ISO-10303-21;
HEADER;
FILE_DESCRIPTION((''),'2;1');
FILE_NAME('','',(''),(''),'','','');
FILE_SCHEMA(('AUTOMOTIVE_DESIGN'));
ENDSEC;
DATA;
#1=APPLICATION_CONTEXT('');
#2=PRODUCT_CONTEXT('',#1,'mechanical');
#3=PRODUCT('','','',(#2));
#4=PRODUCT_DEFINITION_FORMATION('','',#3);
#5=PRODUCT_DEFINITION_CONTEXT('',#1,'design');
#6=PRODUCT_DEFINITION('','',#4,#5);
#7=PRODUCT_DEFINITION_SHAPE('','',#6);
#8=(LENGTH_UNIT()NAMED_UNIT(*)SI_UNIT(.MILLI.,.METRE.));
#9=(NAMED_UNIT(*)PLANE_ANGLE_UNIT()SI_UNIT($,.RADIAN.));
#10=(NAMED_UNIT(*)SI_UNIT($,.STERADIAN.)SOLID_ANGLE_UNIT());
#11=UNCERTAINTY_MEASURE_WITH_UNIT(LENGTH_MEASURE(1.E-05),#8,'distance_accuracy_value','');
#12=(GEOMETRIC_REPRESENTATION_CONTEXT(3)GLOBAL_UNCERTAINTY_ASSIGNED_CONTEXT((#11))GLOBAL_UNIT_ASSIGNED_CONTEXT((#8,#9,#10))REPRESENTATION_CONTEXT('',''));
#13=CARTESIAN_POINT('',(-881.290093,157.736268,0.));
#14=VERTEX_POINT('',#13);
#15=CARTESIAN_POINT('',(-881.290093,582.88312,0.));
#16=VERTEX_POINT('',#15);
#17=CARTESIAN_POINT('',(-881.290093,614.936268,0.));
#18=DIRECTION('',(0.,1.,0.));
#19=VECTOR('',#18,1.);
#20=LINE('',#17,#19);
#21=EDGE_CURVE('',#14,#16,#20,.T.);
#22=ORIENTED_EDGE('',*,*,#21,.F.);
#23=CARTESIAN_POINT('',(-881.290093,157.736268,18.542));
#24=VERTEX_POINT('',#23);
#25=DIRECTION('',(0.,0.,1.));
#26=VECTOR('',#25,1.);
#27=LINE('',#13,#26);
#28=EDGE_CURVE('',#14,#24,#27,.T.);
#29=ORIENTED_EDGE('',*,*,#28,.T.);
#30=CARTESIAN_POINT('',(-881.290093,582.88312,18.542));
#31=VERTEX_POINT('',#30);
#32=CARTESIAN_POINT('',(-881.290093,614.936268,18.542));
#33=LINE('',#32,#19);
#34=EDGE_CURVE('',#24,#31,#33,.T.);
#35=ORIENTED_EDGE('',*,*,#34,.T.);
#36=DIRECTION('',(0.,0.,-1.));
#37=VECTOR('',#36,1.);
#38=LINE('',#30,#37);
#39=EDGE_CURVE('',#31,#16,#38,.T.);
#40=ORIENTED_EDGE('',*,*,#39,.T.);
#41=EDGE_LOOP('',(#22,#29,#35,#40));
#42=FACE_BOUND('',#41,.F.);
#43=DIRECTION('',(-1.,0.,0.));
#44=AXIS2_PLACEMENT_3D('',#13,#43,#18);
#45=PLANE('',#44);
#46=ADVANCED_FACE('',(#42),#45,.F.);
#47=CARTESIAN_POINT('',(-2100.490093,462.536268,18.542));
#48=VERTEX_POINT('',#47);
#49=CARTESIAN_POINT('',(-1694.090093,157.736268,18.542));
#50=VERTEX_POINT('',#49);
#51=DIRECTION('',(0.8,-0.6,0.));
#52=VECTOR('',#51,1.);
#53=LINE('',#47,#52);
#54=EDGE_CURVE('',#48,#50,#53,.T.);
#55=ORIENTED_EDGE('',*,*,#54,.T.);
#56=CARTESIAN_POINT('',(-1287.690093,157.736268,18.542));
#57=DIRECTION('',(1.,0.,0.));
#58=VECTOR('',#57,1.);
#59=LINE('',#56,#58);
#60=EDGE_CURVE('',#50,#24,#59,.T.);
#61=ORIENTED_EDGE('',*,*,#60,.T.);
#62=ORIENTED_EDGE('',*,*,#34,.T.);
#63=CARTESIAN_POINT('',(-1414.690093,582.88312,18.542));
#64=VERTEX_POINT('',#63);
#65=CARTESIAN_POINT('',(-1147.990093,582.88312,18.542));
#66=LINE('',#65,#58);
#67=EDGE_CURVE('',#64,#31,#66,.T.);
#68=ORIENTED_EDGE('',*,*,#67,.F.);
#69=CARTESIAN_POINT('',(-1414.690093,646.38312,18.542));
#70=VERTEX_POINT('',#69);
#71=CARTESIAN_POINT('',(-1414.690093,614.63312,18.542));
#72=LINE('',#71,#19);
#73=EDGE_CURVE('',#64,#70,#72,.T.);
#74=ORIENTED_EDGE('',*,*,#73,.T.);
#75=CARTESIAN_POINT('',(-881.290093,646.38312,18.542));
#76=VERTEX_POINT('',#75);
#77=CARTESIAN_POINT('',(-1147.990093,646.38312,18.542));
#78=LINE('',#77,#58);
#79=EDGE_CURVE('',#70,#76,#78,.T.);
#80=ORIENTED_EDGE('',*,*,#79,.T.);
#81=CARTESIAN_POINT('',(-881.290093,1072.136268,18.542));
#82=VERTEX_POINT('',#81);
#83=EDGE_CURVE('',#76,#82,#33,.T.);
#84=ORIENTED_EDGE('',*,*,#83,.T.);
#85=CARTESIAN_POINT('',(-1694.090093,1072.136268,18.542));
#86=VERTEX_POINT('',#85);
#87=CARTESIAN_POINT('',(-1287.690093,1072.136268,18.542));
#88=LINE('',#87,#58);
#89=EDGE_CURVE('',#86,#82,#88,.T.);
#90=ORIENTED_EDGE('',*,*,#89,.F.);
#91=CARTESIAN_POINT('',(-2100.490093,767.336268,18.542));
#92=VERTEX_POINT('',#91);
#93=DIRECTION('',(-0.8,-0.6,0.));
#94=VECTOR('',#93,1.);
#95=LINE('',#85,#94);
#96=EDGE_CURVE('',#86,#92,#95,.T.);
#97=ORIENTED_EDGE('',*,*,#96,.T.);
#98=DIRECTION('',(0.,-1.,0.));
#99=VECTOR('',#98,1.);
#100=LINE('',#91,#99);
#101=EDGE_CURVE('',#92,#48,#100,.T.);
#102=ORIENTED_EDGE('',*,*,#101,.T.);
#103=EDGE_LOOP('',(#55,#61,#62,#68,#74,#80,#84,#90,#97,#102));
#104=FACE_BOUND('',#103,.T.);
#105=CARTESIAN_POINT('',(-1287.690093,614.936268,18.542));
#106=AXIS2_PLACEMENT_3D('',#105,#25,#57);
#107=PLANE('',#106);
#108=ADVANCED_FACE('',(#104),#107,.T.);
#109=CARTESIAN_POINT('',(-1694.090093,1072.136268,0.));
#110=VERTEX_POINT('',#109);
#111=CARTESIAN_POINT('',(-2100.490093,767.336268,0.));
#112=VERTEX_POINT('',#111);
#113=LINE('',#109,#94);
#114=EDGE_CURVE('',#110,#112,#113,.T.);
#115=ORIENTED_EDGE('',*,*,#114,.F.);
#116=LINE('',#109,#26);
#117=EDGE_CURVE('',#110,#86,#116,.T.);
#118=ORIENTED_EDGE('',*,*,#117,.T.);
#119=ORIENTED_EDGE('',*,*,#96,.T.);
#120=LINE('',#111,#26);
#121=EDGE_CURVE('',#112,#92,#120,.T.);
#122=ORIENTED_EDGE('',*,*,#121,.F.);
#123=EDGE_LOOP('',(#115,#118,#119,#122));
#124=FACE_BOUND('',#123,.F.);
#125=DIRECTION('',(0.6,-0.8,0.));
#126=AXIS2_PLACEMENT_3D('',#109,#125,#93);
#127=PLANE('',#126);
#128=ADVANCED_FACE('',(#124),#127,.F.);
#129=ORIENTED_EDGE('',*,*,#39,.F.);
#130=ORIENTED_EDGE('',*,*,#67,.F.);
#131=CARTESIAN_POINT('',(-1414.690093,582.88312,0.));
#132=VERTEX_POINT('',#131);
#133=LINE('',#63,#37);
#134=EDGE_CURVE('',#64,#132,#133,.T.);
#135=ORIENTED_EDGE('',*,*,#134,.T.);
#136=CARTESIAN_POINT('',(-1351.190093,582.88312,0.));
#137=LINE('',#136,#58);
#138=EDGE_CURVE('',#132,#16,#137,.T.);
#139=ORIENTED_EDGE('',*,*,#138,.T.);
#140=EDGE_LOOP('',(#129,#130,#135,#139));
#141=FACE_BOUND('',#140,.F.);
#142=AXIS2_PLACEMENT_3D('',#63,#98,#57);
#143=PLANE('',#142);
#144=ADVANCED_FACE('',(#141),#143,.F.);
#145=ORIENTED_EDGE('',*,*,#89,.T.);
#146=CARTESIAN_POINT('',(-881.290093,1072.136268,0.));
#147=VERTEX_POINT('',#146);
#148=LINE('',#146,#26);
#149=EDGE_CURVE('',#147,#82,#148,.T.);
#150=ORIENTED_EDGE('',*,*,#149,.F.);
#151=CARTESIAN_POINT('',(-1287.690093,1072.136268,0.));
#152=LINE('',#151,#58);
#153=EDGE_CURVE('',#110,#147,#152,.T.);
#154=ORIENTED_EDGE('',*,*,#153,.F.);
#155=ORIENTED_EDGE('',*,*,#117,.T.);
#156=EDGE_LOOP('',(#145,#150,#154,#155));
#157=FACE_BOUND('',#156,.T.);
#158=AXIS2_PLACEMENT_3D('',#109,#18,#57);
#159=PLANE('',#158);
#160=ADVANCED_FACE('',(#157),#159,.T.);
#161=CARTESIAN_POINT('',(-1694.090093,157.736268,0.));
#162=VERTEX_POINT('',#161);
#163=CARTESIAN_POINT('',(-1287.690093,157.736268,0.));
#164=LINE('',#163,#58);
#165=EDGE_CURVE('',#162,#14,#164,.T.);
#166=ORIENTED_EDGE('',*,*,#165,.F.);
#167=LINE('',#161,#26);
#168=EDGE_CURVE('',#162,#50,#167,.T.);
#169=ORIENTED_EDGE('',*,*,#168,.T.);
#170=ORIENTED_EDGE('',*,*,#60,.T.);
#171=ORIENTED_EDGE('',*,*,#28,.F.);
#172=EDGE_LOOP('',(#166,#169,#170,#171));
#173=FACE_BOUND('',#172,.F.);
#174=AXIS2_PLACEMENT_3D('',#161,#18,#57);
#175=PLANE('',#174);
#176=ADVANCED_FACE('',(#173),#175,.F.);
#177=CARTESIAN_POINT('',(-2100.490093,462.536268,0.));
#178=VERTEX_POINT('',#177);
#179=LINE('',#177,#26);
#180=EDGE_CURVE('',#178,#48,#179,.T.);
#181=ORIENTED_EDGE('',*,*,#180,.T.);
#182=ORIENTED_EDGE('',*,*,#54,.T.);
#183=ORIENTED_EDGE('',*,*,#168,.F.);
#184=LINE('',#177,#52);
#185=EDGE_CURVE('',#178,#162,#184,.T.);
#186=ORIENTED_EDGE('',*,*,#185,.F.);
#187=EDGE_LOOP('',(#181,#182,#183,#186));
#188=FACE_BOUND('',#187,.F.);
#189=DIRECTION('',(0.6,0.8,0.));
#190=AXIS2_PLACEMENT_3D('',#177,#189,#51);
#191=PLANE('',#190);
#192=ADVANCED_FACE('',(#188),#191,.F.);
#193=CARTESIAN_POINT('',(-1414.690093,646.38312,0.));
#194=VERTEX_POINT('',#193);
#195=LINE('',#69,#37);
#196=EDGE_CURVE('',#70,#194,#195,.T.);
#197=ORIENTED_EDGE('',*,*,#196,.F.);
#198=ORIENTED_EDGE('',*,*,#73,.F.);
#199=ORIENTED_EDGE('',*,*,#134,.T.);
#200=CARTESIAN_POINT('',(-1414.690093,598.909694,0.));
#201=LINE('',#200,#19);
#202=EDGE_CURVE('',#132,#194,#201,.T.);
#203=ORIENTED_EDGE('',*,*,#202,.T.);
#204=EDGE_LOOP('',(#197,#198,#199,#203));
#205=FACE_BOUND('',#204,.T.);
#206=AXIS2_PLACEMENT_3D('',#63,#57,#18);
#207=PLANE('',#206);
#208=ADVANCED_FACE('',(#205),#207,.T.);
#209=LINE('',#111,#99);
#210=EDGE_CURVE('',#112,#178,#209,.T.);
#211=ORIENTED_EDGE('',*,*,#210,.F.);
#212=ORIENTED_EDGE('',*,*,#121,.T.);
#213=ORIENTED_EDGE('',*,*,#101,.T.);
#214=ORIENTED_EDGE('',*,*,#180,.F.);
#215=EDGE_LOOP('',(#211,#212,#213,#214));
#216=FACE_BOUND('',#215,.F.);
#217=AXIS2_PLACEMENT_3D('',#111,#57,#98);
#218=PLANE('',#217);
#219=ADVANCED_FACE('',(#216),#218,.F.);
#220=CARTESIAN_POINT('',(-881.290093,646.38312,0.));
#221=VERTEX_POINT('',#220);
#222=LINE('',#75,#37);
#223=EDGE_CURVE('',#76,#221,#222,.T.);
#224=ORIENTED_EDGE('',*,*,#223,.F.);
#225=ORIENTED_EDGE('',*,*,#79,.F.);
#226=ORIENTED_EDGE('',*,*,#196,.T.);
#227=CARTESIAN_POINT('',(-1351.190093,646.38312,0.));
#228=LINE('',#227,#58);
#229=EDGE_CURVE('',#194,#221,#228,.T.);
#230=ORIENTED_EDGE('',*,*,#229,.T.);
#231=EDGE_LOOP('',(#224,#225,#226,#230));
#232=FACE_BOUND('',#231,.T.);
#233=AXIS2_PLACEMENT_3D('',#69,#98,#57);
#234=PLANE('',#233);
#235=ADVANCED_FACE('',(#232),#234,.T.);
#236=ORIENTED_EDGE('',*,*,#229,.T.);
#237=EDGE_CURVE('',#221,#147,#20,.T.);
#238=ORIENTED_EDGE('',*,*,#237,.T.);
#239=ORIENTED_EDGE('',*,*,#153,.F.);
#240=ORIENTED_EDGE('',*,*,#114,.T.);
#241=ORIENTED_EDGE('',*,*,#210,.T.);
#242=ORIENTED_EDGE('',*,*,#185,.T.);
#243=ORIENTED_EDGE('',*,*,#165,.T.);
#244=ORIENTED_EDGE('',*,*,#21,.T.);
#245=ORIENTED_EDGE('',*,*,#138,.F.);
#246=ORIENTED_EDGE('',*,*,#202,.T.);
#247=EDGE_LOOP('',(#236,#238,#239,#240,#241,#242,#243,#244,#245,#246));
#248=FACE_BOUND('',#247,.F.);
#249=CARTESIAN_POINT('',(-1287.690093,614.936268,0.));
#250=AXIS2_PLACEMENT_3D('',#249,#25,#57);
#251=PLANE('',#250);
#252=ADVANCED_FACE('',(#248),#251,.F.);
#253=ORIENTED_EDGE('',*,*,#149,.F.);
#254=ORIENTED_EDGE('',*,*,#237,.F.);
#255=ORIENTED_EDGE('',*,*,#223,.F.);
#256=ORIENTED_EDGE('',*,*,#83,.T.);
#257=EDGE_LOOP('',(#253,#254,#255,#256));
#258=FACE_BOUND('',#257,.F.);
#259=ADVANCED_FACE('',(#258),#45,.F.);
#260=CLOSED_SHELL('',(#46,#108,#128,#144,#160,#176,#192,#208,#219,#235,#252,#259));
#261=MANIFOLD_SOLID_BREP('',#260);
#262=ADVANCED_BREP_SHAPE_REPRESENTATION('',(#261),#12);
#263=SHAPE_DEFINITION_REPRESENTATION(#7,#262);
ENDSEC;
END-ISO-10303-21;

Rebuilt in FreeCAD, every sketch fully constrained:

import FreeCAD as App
import Part
import Sketcher

V = App.Vector
Q = App.Units.Quantity


def add_polygon(sketch, points):
    """Adds a closed chain of lines whose ends are joined by coincident constraints."""
    first, n = sketch.GeometryCount, len(points)
    for a, b in zip(points, points[1:] + points[:1]):
        sketch.addGeometry(Part.LineSegment(App.Vector(*a, 0), App.Vector(*b, 0)), False)
    for i in range(n):
        sketch.addConstraint(Sketcher.Constraint("Coincident", first + i, 2, first + (i + 1) % n, 1))

doc = App.newDocument("Part")
params = doc.addObject("Spreadsheet::Sheet", "Params")
for row, (alias, value) in enumerate([
    ("sketch1_width", "32 in"),
    ("sketch1_height", "36 in"),
    ("sketch1_height2", "12 in"),
    ("sketch1_length", "20 in"),
    ("pad1_length", "0.73 in"),
    ("sketch2_width", "21 in"),
    ("sketch2_height", "2.5 in"),
], start=1):
    params.set(f"A{row}", alias)
    params.set(f"B{row}", "=" + value)
    params.setAlias(f"B{row}", alias)

body = doc.addObject("PartDesign::Body", "Body")

# Sketch on XY plane
sketch1 = body.newObject("Sketcher::SketchObject", "Sketch")
sketch1.AttachmentSupport = (doc.getObject("XY_Plane"), [""])
sketch1.MapMode = "FlatFace"
add_polygon(sketch1, [(-1694, 158), (-881, 158), (-881, 1072), (-1694, 1072), (-2100, 767), (-2100, 463)])  # lines 0-5
sketch1.addConstraint(Sketcher.Constraint("Horizontal", 0))
sketch1.addConstraint(Sketcher.Constraint("Vertical", 1))
sketch1.addConstraint(Sketcher.Constraint("Horizontal", 2))
sketch1.addConstraint(Sketcher.Constraint("Vertical", 4))
sketch1.addConstraint(Sketcher.Constraint("Vertical", 2, 2, 5, 2))
sketch1.addConstraint(Sketcher.Constraint("Equal", 3, 5))
sketch1.addConstraint(Sketcher.Constraint("DistanceX", 0, 1, 0, 2, Q("32 in")))
sketch1.addConstraint(Sketcher.Constraint("DistanceY", 1, 1, 1, 2, Q("36 in")))
sketch1.addConstraint(Sketcher.Constraint("DistanceY", 4, 2, 4, 1, Q("12 in")))
sketch1.addConstraint(Sketcher.Constraint("Distance", 3, Q("20 in")))
sketch1.addConstraint(Sketcher.Constraint("DistanceY", -1, 1, 0, 2, Q("157.736268 mm")))
sketch1.addConstraint(Sketcher.Constraint("DistanceX", 0, 2, -1, 1, Q("881.290093 mm")))
sketch1.setExpression("Constraints[12]", "Params.sketch1_width")
sketch1.setExpression("Constraints[13]", "Params.sketch1_height")
sketch1.setExpression("Constraints[14]", "Params.sketch1_height2")
sketch1.setExpression("Constraints[15]", "Params.sketch1_length")
pad1 = body.newObject("PartDesign::Pad", "Pad")
pad1.Profile = sketch1
pad1.setExpression("Length", "Params.pad1_length")

# Sketch on XY plane
sketch2 = body.newObject("Sketcher::SketchObject", "Sketch001")
sketch2.AttachmentSupport = (doc.getObject("XY_Plane"), [""])
sketch2.MapMode = "FlatFace"
sketch2.AttachmentOffset = App.Placement(V(0, 0, 0.73 * 25.4), App.Rotation())
add_polygon(sketch2, [(-1415, 646), (-1415, 583), (-881, 583), (-881, 646)])  # lines 0-3
sketch2.addConstraint(Sketcher.Constraint("Vertical", 0))
sketch2.addConstraint(Sketcher.Constraint("Horizontal", 1))
sketch2.addConstraint(Sketcher.Constraint("Vertical", 2))
sketch2.addConstraint(Sketcher.Constraint("Horizontal", 3))
sketch2.addConstraint(Sketcher.Constraint("DistanceX", 1, 1, 1, 2, Q("21 in")))
sketch2.addConstraint(Sketcher.Constraint("DistanceY", 0, 2, 0, 1, Q("2.5 in")))
sketch2.addConstraint(Sketcher.Constraint("DistanceY", -1, 1, 0, 2, Q("582.88312 mm")))
sketch2.addConstraint(Sketcher.Constraint("DistanceX", 0, 2, -1, 1, Q("1414.690093 mm")))
sketch2.setExpression("Constraints[8]", "Params.sketch2_width")
sketch2.setExpression("Constraints[9]", "Params.sketch2_height")
pocket1 = body.newObject("PartDesign::Pocket", "Pocket")
pocket1.Profile = sketch2
pocket1.Type = "ThroughAll"

doc.recompute()
